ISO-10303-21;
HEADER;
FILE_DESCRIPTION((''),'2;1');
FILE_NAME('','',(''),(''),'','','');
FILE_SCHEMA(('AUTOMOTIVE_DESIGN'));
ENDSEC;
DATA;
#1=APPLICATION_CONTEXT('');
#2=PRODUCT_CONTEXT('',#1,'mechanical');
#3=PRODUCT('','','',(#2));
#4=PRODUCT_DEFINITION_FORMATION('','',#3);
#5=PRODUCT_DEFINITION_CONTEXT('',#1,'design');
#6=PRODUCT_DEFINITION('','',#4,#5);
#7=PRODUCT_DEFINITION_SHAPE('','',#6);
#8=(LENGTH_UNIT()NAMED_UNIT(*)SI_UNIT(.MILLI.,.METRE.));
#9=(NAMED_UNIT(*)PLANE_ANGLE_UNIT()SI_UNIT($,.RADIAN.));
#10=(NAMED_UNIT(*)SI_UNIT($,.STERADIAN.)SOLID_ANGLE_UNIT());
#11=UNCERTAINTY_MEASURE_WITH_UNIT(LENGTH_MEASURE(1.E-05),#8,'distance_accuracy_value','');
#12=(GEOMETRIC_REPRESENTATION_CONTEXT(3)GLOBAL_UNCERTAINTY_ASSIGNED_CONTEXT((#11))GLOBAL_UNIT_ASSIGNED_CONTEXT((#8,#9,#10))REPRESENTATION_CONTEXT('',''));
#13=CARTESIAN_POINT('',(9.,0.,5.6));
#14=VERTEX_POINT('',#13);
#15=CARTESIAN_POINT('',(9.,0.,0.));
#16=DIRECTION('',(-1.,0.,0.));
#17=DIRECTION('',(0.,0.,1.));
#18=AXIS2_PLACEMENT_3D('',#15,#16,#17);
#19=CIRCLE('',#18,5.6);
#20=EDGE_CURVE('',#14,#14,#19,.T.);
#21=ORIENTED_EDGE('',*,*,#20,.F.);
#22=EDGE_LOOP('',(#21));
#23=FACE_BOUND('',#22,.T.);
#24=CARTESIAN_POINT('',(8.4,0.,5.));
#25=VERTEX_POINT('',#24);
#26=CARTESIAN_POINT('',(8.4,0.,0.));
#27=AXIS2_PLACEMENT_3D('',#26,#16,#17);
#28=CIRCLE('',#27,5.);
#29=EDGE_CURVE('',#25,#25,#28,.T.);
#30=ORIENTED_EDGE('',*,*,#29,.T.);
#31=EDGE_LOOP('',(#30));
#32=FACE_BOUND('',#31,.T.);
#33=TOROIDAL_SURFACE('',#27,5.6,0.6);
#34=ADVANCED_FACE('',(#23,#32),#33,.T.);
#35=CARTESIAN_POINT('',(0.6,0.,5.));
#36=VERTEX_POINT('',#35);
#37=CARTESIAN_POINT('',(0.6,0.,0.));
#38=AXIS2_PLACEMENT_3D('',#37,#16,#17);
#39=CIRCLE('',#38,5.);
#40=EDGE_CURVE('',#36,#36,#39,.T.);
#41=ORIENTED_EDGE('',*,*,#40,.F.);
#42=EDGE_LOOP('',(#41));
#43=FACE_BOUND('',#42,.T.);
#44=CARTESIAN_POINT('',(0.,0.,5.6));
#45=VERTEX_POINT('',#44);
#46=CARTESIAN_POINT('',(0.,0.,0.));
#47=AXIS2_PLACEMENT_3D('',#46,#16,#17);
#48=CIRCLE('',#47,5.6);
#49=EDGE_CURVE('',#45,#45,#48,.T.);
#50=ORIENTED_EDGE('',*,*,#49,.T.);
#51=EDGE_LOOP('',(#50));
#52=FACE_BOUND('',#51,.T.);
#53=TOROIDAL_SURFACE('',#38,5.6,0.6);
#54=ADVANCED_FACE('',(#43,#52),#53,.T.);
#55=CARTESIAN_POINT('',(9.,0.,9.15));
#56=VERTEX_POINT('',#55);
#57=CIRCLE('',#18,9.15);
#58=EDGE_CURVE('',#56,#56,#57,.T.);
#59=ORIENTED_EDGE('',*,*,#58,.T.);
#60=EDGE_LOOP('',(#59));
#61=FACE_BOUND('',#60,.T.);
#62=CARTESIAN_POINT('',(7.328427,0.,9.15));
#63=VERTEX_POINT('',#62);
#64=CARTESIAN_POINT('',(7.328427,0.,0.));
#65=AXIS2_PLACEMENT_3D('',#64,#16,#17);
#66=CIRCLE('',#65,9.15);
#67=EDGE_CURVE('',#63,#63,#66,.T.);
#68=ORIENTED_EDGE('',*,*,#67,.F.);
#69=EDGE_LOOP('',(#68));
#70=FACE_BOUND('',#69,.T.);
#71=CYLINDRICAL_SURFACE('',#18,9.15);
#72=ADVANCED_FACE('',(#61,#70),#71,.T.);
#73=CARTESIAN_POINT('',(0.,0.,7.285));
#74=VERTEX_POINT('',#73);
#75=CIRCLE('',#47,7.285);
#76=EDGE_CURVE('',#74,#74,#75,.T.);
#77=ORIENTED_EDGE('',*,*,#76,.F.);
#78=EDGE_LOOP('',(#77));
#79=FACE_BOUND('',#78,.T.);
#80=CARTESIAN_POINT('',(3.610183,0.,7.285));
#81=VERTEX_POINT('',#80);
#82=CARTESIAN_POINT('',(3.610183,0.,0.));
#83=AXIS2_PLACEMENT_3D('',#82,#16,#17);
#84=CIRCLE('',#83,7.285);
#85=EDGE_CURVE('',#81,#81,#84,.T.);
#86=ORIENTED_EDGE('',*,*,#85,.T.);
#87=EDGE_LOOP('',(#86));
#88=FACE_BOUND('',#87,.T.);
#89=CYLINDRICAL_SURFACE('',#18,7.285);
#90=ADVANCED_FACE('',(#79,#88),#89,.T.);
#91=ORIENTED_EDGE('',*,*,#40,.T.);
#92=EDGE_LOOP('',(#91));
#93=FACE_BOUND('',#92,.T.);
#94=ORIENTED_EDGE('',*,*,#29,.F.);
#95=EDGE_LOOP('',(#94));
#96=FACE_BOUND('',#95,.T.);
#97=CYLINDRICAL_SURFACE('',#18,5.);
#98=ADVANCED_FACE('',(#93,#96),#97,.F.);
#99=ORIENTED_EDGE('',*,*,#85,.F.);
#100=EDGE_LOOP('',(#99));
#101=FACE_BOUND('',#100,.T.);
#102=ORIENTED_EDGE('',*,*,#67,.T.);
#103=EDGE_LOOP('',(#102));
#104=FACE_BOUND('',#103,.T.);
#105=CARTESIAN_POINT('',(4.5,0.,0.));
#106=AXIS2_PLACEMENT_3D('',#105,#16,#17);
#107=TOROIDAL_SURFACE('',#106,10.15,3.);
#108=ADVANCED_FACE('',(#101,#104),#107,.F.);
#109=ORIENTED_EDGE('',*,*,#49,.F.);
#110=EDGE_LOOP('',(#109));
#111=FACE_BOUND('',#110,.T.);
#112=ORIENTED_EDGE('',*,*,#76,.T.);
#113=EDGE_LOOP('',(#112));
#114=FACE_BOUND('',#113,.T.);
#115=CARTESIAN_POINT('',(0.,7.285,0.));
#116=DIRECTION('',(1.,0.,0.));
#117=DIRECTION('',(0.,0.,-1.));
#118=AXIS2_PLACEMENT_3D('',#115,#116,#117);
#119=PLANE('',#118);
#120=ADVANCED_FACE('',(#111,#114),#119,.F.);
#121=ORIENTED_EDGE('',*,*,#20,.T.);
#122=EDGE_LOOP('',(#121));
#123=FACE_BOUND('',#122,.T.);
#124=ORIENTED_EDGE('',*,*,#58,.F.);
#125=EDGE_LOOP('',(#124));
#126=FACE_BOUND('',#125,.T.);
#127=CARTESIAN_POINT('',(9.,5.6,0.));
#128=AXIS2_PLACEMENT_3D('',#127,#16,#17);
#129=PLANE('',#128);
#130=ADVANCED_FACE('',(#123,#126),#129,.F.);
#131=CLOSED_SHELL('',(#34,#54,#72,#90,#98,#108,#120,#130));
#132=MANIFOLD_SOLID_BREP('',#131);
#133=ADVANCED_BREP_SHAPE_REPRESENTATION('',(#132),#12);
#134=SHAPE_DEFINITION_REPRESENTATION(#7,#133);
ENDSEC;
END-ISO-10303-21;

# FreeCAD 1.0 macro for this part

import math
import FreeCAD as App
import Part
import Sketcher
Q = App.Units.Quantity

doc = App.newDocument("Part")
body = doc.addObject("PartDesign::Body", "Body")

sketch1 = body.newObject("Sketcher::SketchObject", "Sketch")
sketch1.AttachmentSupport = (doc.getObject("XY_Plane"), [""])
sketch1.MapMode = "FlatFace"
sketch1.addGeometry([
    Part.LineSegment(App.Vector(0, 7.285, 0), App.Vector(0, 5.6, 0)),
    Part.ArcOfCircle(Part.Circle(App.Vector(0.6, 5.6, 0), App.Vector(0, 0, 1), 0.6), math.radians(180), math.radians(270)),
    Part.LineSegment(App.Vector(0.6, 5, 0), App.Vector(8.4, 5, 0)),
    Part.ArcOfCircle(Part.Circle(App.Vector(8.4, 5.6, 0), App.Vector(0, 0, 1), 0.6), math.radians(-90), math.radians(0)),
    Part.LineSegment(App.Vector(9, 5.6, 0), App.Vector(9, 9.15, 0)),
    Part.LineSegment(App.Vector(9, 9.15, 0), App.Vector(7.328427, 9.15, 0)),
    Part.ArcOfCircle(Part.Circle(App.Vector(4.5, 10.15, 0), App.Vector(0, 0, 1), 3), math.radians(-107.253853), math.radians(-19.471221)),
    Part.LineSegment(App.Vector(3.610183, 7.285, 0), App.Vector(0, 7.285, 0)),
], False)
sketch1.addConstraint([
    Sketcher.Constraint("Tangent", 0, 2, 1, 1),
    Sketcher.Constraint("Tangent", 1, 2, 2, 1),
    Sketcher.Constraint("Tangent", 2, 2, 3, 1),
    Sketcher.Constraint("Tangent", 3, 2, 4, 1),
    Sketcher.Constraint("Coincident", 4, 2, 5, 1),
    Sketcher.Constraint("Coincident", 5, 2, 6, 2),
    Sketcher.Constraint("Coincident", 6, 1, 7, 1),
    Sketcher.Constraint("Coincident", 7, 2, 0, 1),
    Sketcher.Constraint("Vertical", 0),
    Sketcher.Constraint("Horizontal", 2),
    Sketcher.Constraint("Vertical", 4),
    Sketcher.Constraint("Horizontal", 5),
    Sketcher.Constraint("Horizontal", 7),
    Sketcher.Constraint("Equal", 1, 3),
    Sketcher.Constraint("PointOnObject", 0, 2, -2),
    Sketcher.Constraint("Radius", 6, Q("3 mm")),
    Sketcher.Constraint("Radius", 1, Q("0.6 mm")),
    Sketcher.Constraint("DistanceX", 2, 1, 2, 2, Q("7.8 mm")),
    Sketcher.Constraint("DistanceY", -1, 1, 1, 2, Q("5 mm")),
    Sketcher.Constraint("DistanceY", 4, 2, 6, 3, Q("1 mm")),
    Sketcher.Constraint("DistanceY", 4, 1, 4, 2, Q("3.55 mm")),
    Sketcher.Constraint("DistanceX", -1, 1, 6, 3, Q("4.5 mm")),
    Sketcher.Constraint("DistanceY", 0, 2, 0, 1, Q("1.685 mm")),
])
revolution = body.newObject("PartDesign::Revolution", "Revolution")
revolution.Profile = sketch1
revolution.ReferenceAxis = (sketch1, ["H_Axis"])
revolution.Angle = 360

doc.recompute()
